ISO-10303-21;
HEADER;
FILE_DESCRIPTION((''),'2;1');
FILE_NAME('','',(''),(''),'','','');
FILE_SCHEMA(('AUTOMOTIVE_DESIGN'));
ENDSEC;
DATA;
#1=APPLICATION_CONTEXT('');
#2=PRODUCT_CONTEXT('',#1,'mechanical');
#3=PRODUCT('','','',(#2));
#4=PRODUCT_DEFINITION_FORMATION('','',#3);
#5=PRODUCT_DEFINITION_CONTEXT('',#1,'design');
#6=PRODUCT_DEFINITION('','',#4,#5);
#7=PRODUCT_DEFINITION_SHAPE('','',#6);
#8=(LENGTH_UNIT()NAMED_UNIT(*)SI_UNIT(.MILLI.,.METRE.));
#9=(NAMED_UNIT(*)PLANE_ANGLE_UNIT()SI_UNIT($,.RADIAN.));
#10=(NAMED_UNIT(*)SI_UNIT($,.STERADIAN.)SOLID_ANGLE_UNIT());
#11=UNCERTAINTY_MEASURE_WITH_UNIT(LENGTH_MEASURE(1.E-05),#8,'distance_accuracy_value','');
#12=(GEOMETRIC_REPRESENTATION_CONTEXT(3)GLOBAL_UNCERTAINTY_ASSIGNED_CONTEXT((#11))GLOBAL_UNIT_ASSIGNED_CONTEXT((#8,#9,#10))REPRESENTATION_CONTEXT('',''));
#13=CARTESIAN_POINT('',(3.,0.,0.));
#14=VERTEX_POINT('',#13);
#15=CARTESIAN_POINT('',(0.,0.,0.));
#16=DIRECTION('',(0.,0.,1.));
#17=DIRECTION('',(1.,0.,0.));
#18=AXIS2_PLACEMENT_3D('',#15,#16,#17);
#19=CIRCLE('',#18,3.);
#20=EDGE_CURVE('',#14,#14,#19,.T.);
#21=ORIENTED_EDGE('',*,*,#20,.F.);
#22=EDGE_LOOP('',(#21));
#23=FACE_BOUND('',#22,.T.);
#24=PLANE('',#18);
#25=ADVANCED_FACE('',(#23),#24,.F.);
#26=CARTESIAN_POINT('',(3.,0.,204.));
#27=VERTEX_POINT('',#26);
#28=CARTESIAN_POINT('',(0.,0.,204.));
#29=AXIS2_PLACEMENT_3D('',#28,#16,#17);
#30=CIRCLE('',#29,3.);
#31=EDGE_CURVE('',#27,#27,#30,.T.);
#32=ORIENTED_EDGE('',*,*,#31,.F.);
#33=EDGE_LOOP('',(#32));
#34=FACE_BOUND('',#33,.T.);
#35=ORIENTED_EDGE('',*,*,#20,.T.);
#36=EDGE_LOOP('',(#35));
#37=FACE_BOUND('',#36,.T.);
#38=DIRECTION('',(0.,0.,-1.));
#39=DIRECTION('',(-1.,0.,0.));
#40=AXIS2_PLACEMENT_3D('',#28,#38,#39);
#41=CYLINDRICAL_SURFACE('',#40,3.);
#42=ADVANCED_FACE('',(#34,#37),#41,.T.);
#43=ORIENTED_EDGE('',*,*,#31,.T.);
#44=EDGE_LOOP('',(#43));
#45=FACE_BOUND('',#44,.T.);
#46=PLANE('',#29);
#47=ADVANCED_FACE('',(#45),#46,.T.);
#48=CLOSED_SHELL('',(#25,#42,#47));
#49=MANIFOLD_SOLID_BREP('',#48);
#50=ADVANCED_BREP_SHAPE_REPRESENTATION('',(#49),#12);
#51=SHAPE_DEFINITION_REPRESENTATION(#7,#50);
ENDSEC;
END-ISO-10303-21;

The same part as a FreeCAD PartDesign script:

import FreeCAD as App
import Part
import Sketcher

V = App.Vector
Q = App.Units.Quantity

doc = App.newDocument("Part")
params = doc.addObject("Spreadsheet::Sheet", "Params")
for row, (alias, value) in enumerate([
    ("sketch1_diameter", "6 mm"),
    ("pad1_length", "204 mm"),
], start=1):
    params.set(f"A{row}", alias)
    params.set(f"B{row}", "=" + value)
    params.setAlias(f"B{row}", alias)

body = doc.addObject("PartDesign::Body", "Body")

# Sketch on XY plane
sketch1 = doc.addObject("Sketcher::SketchObject", "Sketch")
body.addObject(sketch1)
sketch1.AttachmentSupport = (doc.XY_Plane, [""])
sketch1.MapMode = "FlatFace"
sketch1.addGeometry(Part.Circle(V(0, 0, 0), V(0, 0, 1), 3), False)
sketch1.addConstraint([
    Sketcher.Constraint("Coincident", 0, 3, -1, 1),
    Sketcher.Constraint("Diameter", 0, Q("6 mm")),
])
sketch1.setExpression("Constraints[1]", "Params.sketch1_diameter")
pad1 = doc.addObject("PartDesign::Pad", "Pad")
body.addObject(pad1)
pad1.Profile = sketch1
pad1.setExpression("Length", "Params.pad1_length")

doc.recompute()
